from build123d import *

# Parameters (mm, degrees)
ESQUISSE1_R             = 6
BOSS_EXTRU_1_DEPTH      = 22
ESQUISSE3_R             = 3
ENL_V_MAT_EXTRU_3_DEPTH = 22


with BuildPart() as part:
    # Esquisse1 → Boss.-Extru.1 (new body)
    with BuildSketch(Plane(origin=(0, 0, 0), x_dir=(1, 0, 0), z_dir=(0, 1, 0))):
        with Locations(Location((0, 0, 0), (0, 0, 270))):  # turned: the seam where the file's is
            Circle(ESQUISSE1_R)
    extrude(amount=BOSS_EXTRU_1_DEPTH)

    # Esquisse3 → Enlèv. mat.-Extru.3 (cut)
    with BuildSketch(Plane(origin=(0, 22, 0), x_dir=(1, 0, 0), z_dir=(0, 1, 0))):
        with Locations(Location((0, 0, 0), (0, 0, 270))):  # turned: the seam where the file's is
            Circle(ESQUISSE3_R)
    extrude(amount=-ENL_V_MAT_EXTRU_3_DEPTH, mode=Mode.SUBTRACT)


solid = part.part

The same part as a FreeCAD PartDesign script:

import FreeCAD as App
import Part
import Sketcher

doc = App.newDocument("Part")
body = doc.addObject("PartDesign::Body", "Body")

# Sketch on XZ plane
sketch1 = doc.addObject("Sketcher::SketchObject", "Sketch")
body.addObject(sketch1)
sketch1.AttachmentSupport = (doc.XZ_Plane, [""])
sketch1.MapMode = "FlatFace"
sketch1.addGeometry(Part.Circle(App.Vector(0, 0, 0), App.Vector(0, 0, 1), 6), False)
sketch1.addConstraint(Sketcher.Constraint("Coincident", 0, 3, -1, 1))
sketch1.addConstraint(Sketcher.Constraint("Diameter", 0, 12.0))
pad1 = doc.addObject("PartDesign::Pad", "Pad")
body.addObject(pad1)
pad1.Profile = sketch1
pad1.Length = 22
pad1.Reversed = True

# Sketch on XZ plane
sketch2 = doc.addObject("Sketcher::SketchObject", "Sketch001")
body.addObject(sketch2)
sketch2.AttachmentSupport = (doc.XZ_Plane, [""])
sketch2.MapMode = "FlatFace"
sketch2.AttachmentOffset = App.Placement(App.Vector(0, 0, -22), App.Rotation())
sketch2.addGeometry(Part.Circle(App.Vector(0, 0, 0), App.Vector(0, 0, 1), 3), False)
sketch2.addConstraint(Sketcher.Constraint("Coincident", 0, 3, -1, 1))
sketch2.addConstraint(Sketcher.Constraint("Diameter", 0, 6.0))
pocket1 = doc.addObject("PartDesign::Pocket", "Pocket")
body.addObject(pocket1)
pocket1.Profile = sketch2
pocket1.Length = 22
pocket1.Reversed = True

doc.recompute()
